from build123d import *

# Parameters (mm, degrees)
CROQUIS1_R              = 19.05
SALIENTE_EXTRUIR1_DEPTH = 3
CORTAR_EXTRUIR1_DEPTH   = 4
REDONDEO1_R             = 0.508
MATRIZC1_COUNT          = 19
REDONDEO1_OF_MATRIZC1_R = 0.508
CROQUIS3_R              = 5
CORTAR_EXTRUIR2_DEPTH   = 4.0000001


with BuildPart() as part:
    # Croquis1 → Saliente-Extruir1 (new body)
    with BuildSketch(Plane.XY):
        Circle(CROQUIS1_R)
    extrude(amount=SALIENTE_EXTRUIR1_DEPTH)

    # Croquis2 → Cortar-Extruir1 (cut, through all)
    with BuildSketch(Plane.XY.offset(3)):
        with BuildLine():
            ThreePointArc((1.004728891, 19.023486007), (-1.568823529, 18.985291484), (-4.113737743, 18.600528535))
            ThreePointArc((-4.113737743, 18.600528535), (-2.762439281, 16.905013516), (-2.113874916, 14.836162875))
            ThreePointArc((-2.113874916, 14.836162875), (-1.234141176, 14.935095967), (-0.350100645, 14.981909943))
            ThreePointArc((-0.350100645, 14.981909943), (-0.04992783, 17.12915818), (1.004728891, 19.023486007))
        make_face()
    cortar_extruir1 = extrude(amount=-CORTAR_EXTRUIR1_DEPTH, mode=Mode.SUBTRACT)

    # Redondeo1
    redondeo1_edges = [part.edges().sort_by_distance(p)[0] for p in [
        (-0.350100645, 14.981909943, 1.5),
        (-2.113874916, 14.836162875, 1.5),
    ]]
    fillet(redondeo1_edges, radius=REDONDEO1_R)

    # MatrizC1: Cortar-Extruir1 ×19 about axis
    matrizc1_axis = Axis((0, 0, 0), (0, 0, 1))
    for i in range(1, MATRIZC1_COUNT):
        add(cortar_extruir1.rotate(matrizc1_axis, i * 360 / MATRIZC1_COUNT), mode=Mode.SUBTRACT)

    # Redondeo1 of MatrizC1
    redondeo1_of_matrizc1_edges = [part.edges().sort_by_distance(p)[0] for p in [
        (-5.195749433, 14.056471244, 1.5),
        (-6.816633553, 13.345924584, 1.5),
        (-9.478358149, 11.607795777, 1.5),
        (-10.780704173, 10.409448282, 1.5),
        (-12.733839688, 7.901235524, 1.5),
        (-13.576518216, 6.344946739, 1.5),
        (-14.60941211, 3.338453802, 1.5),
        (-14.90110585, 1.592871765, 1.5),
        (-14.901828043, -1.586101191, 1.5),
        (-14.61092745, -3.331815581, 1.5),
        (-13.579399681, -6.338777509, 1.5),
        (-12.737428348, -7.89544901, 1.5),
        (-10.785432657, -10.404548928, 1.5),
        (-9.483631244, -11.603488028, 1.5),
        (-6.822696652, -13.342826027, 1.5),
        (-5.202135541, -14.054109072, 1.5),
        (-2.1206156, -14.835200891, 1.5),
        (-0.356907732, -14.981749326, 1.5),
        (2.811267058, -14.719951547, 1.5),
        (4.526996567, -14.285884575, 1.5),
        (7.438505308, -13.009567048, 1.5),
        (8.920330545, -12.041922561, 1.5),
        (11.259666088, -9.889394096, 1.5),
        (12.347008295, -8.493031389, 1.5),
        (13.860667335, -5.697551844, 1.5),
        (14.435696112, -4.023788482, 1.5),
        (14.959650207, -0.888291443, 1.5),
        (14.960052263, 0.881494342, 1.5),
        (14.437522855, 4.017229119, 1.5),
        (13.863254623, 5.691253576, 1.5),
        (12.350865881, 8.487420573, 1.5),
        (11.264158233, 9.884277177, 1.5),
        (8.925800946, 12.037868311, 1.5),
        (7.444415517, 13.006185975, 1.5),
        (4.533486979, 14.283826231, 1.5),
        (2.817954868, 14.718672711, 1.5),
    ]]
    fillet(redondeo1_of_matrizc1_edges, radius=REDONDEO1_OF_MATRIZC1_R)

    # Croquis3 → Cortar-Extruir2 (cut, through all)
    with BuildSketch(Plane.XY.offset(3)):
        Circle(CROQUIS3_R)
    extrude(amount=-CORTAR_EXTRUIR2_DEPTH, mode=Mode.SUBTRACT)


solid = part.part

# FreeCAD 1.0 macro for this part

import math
import FreeCAD as App
import Part
import Sketcher
Q = App.Units.Quantity


def edges_at(feature, points):
    """Names of the edges that pass closest to the given points."""
    edges = feature.Shape.Edges
    near = lambda p: min(range(len(edges)), key=lambda i: edges[i].distToShape(Part.Vertex(*p))[0])
    return sorted({f"Edge{near(p) + 1}" for p in points})

doc = App.newDocument("Part")
body = doc.addObject("PartDesign::Body", "Body")

sketch1 = body.newObject("Sketcher::SketchObject", "Sketch")
sketch1.AttachmentSupport = (doc.getObject("XY_Plane"), [""])
sketch1.MapMode = "FlatFace"
sketch1.addGeometry(Part.Circle(App.Vector(0, 0, 0), App.Vector(0, 0, 1), 19), False)
sketch1.addConstraint([
    Sketcher.Constraint("Coincident", 0, 3, -1, 1),
    Sketcher.Constraint("Diameter", 0, Q("38.1 mm")),
])
pad1 = body.newObject("PartDesign::Pad", "Pad")
pad1.Profile = sketch1
pad1.Length = 3

sketch2 = body.newObject("Sketcher::SketchObject", "Sketch001")
sketch2.AttachmentSupport = (doc.getObject("XY_Plane"), [""])
sketch2.MapMode = "FlatFace"
sketch2.AttachmentOffset = App.Placement(App.Vector(0, 0, 3), App.Rotation())
sketch2.addGeometry([
    Part.ArcOfCircle(Part.Circle(App.Vector(0, 0, 0), App.Vector(0, 0, 1), 19.1), math.radians(86.98), math.radians(102.47)),
    Part.ArcOfCircle(Part.Circle(App.Vector(-8, 14.1, 0), App.Vector(0, 0, 1), 5.9), math.radians(7), math.radians(49)),
    Part.ArcOfCircle(Part.Circle(App.Vector(0, 0, 0), App.Vector(0, 0, 1), 15), math.radians(91.34), math.radians(98.11)),
    Part.ArcOfCircle(Part.Circle(App.Vector(5.6, 15.3, 0), App.Vector(0, 0, 1), 5.9), math.radians(140), math.radians(183)),
], False)
sketch2.addConstraint([
    Sketcher.Constraint("Coincident", 0, 2, 1, 2),
    Sketcher.Constraint("Coincident", 1, 1, 2, 2),
    Sketcher.Constraint("Coincident", 2, 1, 3, 2),
    Sketcher.Constraint("Coincident", 3, 1, 0, 1),
    Sketcher.Constraint("Coincident", 0, 3, -1, 1),
    Sketcher.Constraint("Coincident", 2, 3, -1, 1),
    Sketcher.Constraint("Equal", 1, 3),
    Sketcher.Constraint("Radius", 0, Q("19.05 mm")),
    Sketcher.Constraint("Radius", 2, Q("14.986 mm")),
    Sketcher.Constraint("Radius", 1, Q("5.907372 mm")),
    Sketcher.Constraint("DistanceX", 2, 1, -1, 1, Q("0.350101 mm")),
    Sketcher.Constraint("DistanceY", -1, 1, 3, 3, Q("15.25156 mm")),
    Sketcher.Constraint("DistanceY", -1, 1, 0, 2, Q("18.600529 mm")),
    Sketcher.Constraint("DistanceX", 1, 3, 3, 3, Q("13.530421 mm")),
])
pocket1 = body.newObject("PartDesign::Pocket", "Pocket")
pocket1.Profile = sketch2
pocket1.Type = "ThroughAll"
doc.recompute()

fillet = body.newObject("PartDesign::Fillet", "Fillet")
fillet.Base = (pocket1, edges_at(pocket1, [(-0.35, 14.982, 1.5), (-2.114, 14.836, 1.5)]))
fillet.Radius = 0.508
doc.recompute()

polarpattern = body.newObject("PartDesign::PolarPattern", "PolarPattern")
polarpattern.Originals = [pocket1]
polarpattern.Axis = (doc.getObject("Z_Axis"), [""])
polarpattern.Angle = 360
polarpattern.Occurrences = 19
body.Tip = polarpattern
doc.recompute()

fillet2 = body.newObject("PartDesign::Fillet", "Fillet001")
fillet2.Base = (polarpattern, edges_at(polarpattern, [
    (-5.196, 14.056, 1.5),
    (-6.817, 13.346, 1.5),
    (-9.478, 11.608, 1.5),
    (-10.781, 10.409, 1.5),
    (-12.734, 7.901, 1.5),
    (-13.577, 6.345, 1.5),
    (-14.609, 3.338, 1.5),
    (-14.901, 1.593, 1.5),
    (-14.902, -1.586, 1.5),
    (-14.611, -3.332, 1.5),
    (-13.579, -6.339, 1.5),
    (-12.737, -7.895, 1.5),
    (-10.785, -10.405, 1.5),
    (-9.484, -11.603, 1.5),
    (-6.823, -13.343, 1.5),
    (-5.202, -14.054, 1.5),
    (-2.121, -14.835, 1.5),
    (-0.357, -14.982, 1.5),
    (2.811, -14.72, 1.5),
    (4.527, -14.286, 1.5),
    (7.439, -13.01, 1.5),
    (8.92, -12.042, 1.5),
    (11.26, -9.889, 1.5),
    (12.347, -8.493, 1.5),
    (13.861, -5.698, 1.5),
    (14.436, -4.024, 1.5),
    (14.96, -0.888, 1.5),
    (14.96, 0.881, 1.5),
    (14.438, 4.017, 1.5),
    (13.863, 5.691, 1.5),
    (12.351, 8.487, 1.5),
    (11.264, 9.884, 1.5),
    (8.926, 12.038, 1.5),
    (7.444, 13.006, 1.5),
    (4.533, 14.284, 1.5),
    (2.818, 14.719, 1.5),
]))
fillet2.Radius = 0.508

sketch3 = body.newObject("Sketcher::SketchObject", "Sketch002")
sketch3.AttachmentSupport = (doc.getObject("XY_Plane"), [""])
sketch3.MapMode = "FlatFace"
sketch3.AttachmentOffset = App.Placement(App.Vector(0, 0, 3), App.Rotation())
sketch3.addGeometry(Part.Circle(App.Vector(0, 0, 0), App.Vector(0, 0, 1), 5), False)
sketch3.addConstraint([
    Sketcher.Constraint("Coincident", 0, 3, -1, 1),
    Sketcher.Constraint("Diameter", 0, Q("10 mm")),
])
pocket2 = body.newObject("PartDesign::Pocket", "Pocket001")
pocket2.Profile = sketch3
pocket2.Type = "ThroughAll"

doc.recompute()
